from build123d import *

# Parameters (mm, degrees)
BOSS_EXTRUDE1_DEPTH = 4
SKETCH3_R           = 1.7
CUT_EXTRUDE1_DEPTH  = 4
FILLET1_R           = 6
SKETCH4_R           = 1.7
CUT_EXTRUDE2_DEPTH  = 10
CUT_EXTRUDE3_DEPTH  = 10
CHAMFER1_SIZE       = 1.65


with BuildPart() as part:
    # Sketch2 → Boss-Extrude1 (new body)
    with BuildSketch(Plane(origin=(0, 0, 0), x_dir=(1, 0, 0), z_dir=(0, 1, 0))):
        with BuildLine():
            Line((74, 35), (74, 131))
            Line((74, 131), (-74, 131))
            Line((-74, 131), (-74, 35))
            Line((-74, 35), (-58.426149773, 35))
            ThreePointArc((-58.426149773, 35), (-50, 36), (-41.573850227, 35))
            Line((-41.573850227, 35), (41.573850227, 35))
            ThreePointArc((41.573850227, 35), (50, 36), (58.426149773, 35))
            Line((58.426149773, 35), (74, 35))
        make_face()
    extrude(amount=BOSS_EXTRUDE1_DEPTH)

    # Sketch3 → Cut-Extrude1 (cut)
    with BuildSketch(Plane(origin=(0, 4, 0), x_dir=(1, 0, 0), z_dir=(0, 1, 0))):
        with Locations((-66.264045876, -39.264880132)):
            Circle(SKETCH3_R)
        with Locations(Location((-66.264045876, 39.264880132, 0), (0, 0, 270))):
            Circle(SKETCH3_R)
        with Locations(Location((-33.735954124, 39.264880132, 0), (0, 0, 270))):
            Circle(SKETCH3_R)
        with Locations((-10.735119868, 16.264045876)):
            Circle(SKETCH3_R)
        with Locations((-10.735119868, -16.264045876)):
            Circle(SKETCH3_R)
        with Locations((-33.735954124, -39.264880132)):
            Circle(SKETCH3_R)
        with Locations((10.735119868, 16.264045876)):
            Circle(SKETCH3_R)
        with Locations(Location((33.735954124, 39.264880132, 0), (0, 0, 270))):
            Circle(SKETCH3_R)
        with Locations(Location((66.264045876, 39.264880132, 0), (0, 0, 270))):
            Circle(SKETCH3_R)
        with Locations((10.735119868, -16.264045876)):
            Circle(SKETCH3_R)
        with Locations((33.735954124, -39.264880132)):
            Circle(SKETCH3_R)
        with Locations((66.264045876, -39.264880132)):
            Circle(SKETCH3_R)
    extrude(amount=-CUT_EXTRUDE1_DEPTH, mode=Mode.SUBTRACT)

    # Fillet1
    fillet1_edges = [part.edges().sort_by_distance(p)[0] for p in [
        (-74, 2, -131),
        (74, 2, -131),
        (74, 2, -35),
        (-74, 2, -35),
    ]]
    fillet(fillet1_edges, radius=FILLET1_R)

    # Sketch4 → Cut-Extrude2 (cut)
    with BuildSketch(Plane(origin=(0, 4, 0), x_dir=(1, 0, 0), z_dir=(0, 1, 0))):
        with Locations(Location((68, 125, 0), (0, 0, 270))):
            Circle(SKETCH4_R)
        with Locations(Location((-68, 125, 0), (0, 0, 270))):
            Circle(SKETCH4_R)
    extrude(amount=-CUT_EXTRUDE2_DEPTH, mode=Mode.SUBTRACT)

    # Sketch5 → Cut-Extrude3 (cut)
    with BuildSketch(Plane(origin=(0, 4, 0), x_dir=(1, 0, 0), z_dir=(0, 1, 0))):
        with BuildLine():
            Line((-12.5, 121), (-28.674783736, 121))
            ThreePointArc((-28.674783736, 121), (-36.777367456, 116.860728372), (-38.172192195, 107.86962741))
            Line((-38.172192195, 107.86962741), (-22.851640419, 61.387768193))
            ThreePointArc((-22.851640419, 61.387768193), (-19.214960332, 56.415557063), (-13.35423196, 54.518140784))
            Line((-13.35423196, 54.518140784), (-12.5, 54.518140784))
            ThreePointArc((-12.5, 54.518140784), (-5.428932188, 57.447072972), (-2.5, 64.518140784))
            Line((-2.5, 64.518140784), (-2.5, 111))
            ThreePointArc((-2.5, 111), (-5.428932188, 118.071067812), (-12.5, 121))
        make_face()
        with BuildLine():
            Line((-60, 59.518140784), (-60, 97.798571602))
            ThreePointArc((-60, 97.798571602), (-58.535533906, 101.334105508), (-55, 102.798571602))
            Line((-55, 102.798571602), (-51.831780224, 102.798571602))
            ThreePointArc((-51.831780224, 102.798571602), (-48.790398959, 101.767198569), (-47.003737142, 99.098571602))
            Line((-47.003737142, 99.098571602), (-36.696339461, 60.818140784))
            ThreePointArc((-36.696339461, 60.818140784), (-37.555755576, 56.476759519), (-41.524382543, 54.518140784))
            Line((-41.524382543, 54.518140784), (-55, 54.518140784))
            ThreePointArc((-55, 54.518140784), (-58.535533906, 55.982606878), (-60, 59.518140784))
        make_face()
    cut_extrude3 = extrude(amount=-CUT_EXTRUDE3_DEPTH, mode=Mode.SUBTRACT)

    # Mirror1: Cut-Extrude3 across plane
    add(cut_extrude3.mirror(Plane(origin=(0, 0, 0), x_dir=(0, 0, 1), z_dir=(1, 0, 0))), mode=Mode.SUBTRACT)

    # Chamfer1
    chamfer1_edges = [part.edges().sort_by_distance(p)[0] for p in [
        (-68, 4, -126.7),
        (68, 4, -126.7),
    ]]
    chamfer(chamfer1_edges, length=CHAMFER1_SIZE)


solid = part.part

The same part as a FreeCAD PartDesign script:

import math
import FreeCAD as App
import Part
import Sketcher
from FreeCAD import Vector
Q = App.Units.Quantity


def edges_at(feature, points):
    """Names of the edges that pass closest to the given points."""
    edges = feature.Shape.Edges
    near = lambda p: min(range(len(edges)), key=lambda i: edges[i].distToShape(Part.Vertex(*p))[0])
    return sorted({f"Edge{near(p) + 1}" for p in points})

doc = App.newDocument("Part")
params = doc.addObject("Spreadsheet::Sheet", "Params")
for row, (alias, value) in enumerate([
    ("sketch1_radius", "36 mm"),
    ("sketch1_width", "148 mm"),
    ("sketch1_height", "96 mm"),
    ("pad1_length", "4 mm"),
    ("sketch2_diameter", "3.4 mm"),
    ("pocket1_length", "4 mm"),
    ("fillet_radius", "6 mm"),
    ("sketch3_diameter", "3.4 mm"),
    ("pocket2_length", "10 mm"),
    ("sketch4_radius", "10 mm"),
    ("sketch4_radius2", "5 mm"),
    ("sketch4_height", "1.3 mm"),
    ("pocket3_length", "10 mm"),
    ("chamfer_size", "1.65 mm"),
], start=1):
    params.set(f"A{row}", alias)
    params.set(f"B{row}", "=" + value)
    params.setAlias(f"B{row}", alias)

body = doc.addObject("PartDesign::Body", "Body")

sketch1 = doc.addObject("Sketcher::SketchObject", "Sketch")
body.addObject(sketch1)
sketch1.AttachmentSupport = (doc.XZ_Plane, [""])
sketch1.MapMode = "FlatFace"
sketch1.addGeometry(Part.LineSegment(Vector(74, -35, 0), Vector(74, -131, 0)), False)
sketch1.addGeometry(Part.LineSegment(Vector(74, -131, 0), Vector(-74, -131, 0)), False)
sketch1.addGeometry(Part.LineSegment(Vector(-74, -131, 0), Vector(-74, -35, 0)), False)
sketch1.addGeometry(Part.LineSegment(Vector(-74, -35, 0), Vector(-58.42615, -35, 0)), False)
sketch1.addGeometry(Part.ArcOfCircle(Part.Circle(Vector(-50, 0, 0), Vector(0, 0, 1), 36), math.radians(-103.536203), math.radians(-76.463797)), False)
sketch1.addGeometry(Part.LineSegment(Vector(-41.57385, -35, 0), Vector(41.57385, -35, 0)), False)
sketch1.addGeometry(Part.ArcOfCircle(Part.Circle(Vector(50, 0, 0), Vector(0, 0, 1), 36), math.radians(-103.536203), math.radians(-76.463797)), False)
sketch1.addGeometry(Part.LineSegment(Vector(58.42615, -35, 0), Vector(74, -35, 0)), False)
sketch1.addConstraint(Sketcher.Constraint("Coincident", 0, 2, 1, 1))
sketch1.addConstraint(Sketcher.Constraint("Coincident", 1, 2, 2, 1))
sketch1.addConstraint(Sketcher.Constraint("Coincident", 2, 2, 3, 1))
sketch1.addConstraint(Sketcher.Constraint("Coincident", 3, 2, 4, 1))
sketch1.addConstraint(Sketcher.Constraint("Coincident", 4, 2, 5, 1))
sketch1.addConstraint(Sketcher.Constraint("Coincident", 5, 2, 6, 1))
sketch1.addConstraint(Sketcher.Constraint("Coincident", 6, 2, 7, 1))
sketch1.addConstraint(Sketcher.Constraint("Coincident", 7, 2, 0, 1))
sketch1.addConstraint(Sketcher.Constraint("Vertical", 0))
sketch1.addConstraint(Sketcher.Constraint("Horizontal", 1))
sketch1.addConstraint(Sketcher.Constraint("Vertical", 2))
sketch1.addConstraint(Sketcher.Constraint("Horizontal", 3))
sketch1.addConstraint(Sketcher.Constraint("Horizontal", 5))
sketch1.addConstraint(Sketcher.Constraint("Horizontal", 7))
sketch1.addConstraint(Sketcher.Constraint("Equal", 4, 6))
sketch1.addConstraint(Sketcher.Constraint("Symmetric", 4, 3, 6, 3, -1, 1))
sketch1.addConstraint(Sketcher.Constraint("Symmetric", 3, 2, 6, 2, -2))
sketch1.addConstraint(Sketcher.Constraint("Horizontal", 3, 2, 4, 2))
sketch1.addConstraint(Sketcher.Constraint("Equal", 3, 7))
sketch1.addConstraint(Sketcher.Constraint("Radius", 4, Q("36 mm")))
sketch1.addConstraint(Sketcher.Constraint("DistanceX", 1, 2, 1, 1, Q("148 mm")))
sketch1.addConstraint(Sketcher.Constraint("DistanceY", 0, 2, 0, 1, Q("96 mm")))
sketch1.addConstraint(Sketcher.Constraint("DistanceX", 4, 3, -1, 1, Q("50 mm")))
sketch1.addConstraint(Sketcher.Constraint("DistanceY", 0, 2, -1, 1, Q("131 mm")))
sketch1.setExpression("Constraints[19]", "Params.sketch1_radius")
sketch1.setExpression("Constraints[20]", "Params.sketch1_width")
sketch1.setExpression("Constraints[21]", "Params.sketch1_height")
pad1 = doc.addObject("PartDesign::Pad", "Pad")
body.addObject(pad1)
pad1.Profile = sketch1
pad1.setExpression("Length", "Params.pad1_length")
pad1.Reversed = True

sketch2 = doc.addObject("Sketcher::SketchObject", "Sketch001")
body.addObject(sketch2)
sketch2.AttachmentSupport = (doc.XZ_Plane, [""])
sketch2.MapMode = "FlatFace"
sketch2.AttachmentOffset = App.Placement(Vector(0, 0, -4), App.Rotation())
sketch2.addGeometry(Part.Circle(Vector(-66.264046, 39.26488, 0), Vector(0, 0, 1), 1.7), False)
sketch2.addGeometry(Part.Circle(Vector(-66.264046, -39.26488, 0), Vector(0, 0, 1), 1.7), False)
sketch2.addGeometry(Part.Circle(Vector(-33.735954, -39.26488, 0), Vector(0, 0, 1), 1.7), False)
sketch2.addGeometry(Part.Circle(Vector(-10.73512, -16.264046, 0), Vector(0, 0, 1), 1.7), False)
sketch2.addGeometry(Part.Circle(Vector(-10.73512, 16.264046, 0), Vector(0, 0, 1), 1.7), False)
sketch2.addGeometry(Part.Circle(Vector(-33.735954, 39.26488, 0), Vector(0, 0, 1), 1.7), False)
sketch2.addGeometry(Part.Circle(Vector(10.73512, -16.264046, 0), Vector(0, 0, 1), 1.7), False)
sketch2.addGeometry(Part.Circle(Vector(33.735954, -39.26488, 0), Vector(0, 0, 1), 1.7), False)
sketch2.addGeometry(Part.Circle(Vector(66.264046, -39.26488, 0), Vector(0, 0, 1), 1.7), False)
sketch2.addGeometry(Part.Circle(Vector(10.73512, 16.264046, 0), Vector(0, 0, 1), 1.7), False)
sketch2.addGeometry(Part.Circle(Vector(33.735954, 39.26488, 0), Vector(0, 0, 1), 1.7), False)
sketch2.addGeometry(Part.Circle(Vector(66.264046, 39.26488, 0), Vector(0, 0, 1), 1.7), False)
sketch2.addConstraint(Sketcher.Constraint("Equal", 0, 1))
sketch2.addConstraint(Sketcher.Constraint("Equal", 1, 2))
sketch2.addConstraint(Sketcher.Constraint("Equal", 2, 3))
sketch2.addConstraint(Sketcher.Constraint("Equal", 3, 4))
sketch2.addConstraint(Sketcher.Constraint("Equal", 4, 5))
sketch2.addConstraint(Sketcher.Constraint("Equal", 5, 6))
sketch2.addConstraint(Sketcher.Constraint("Equal", 6, 7))
sketch2.addConstraint(Sketcher.Constraint("Equal", 7, 8))
sketch2.addConstraint(Sketcher.Constraint("Equal", 8, 9))
sketch2.addConstraint(Sketcher.Constraint("Equal", 9, 10))
sketch2.addConstraint(Sketcher.Constraint("Equal", 10, 11))
sketch2.addConstraint(Sketcher.Constraint("Symmetric", 4, 3, 6, 3, -1, 1))
sketch2.addConstraint(Sketcher.Constraint("Symmetric", 5, 3, 7, 3, -1, 1))
sketch2.addConstraint(Sketcher.Constraint("Symmetric", 0, 3, 8, 3, -1, 1))
sketch2.addConstraint(Sketcher.Constraint("Symmetric", 3, 3, 9, 3, -1, 1))
sketch2.addConstraint(Sketcher.Constraint("Symmetric", 2, 3, 10, 3, -1, 1))
sketch2.addConstraint(Sketcher.Constraint("Symmetric", 1, 3, 11, 3, -1, 1))
sketch2.addConstraint(Sketcher.Constraint("Symmetric", 3, 3, 6, 3, -2))
sketch2.addConstraint(Sketcher.Constraint("Symmetric", 2, 3, 7, 3, -2))
sketch2.addConstraint(Sketcher.Constraint("Symmetric", 1, 3, 8, 3, -2))
sketch2.addConstraint(Sketcher.Constraint("Horizontal", 1, 3, 2, 3))
sketch2.addConstraint(Sketcher.Constraint("Diameter", 0, Q("3.4 mm")))
sketch2.addConstraint(Sketcher.Constraint("DistanceX", 1, 3, 7, 3, Q("100 mm")))
sketch2.addConstraint(Sketcher.Constraint("DistanceY", -1, 1, 0, 3, Q("39.26488 mm")))
sketch2.addConstraint(Sketcher.Constraint("DistanceX", 3, 3, -1, 1, Q("10.73512 mm")))
sketch2.addConstraint(Sketcher.Constraint("DistanceX", 1, 3, 2, 3, Q("32.528092 mm")))
sketch2.addConstraint(Sketcher.Constraint("DistanceY", 3, 3, 4, 3, Q("32.528092 mm")))
sketch2.setExpression("Constraints[21]", "Params.sketch2_diameter")
pocket1 = doc.addObject("PartDesign::Pocket", "Pocket")
body.addObject(pocket1)
pocket1.Profile = sketch2
pocket1.setExpression("Length", "Params.pocket1_length")
pocket1.Reversed = True
doc.recompute()

fillet = doc.addObject("PartDesign::Fillet", "Fillet")
body.addObject(fillet)
fillet.Base = (pocket1, edges_at(pocket1, [
    (-74, 2, -131),
    (74, 2, -131),
    (74, 2, -35),
    (-74, 2, -35),
]))
fillet.setExpression("Radius", "Params.fillet_radius")

sketch3 = doc.addObject("Sketcher::SketchObject", "Sketch002")
body.addObject(sketch3)
sketch3.AttachmentSupport = (doc.XZ_Plane, [""])
sketch3.MapMode = "FlatFace"
sketch3.AttachmentOffset = App.Placement(Vector(0, 0, -4), App.Rotation())
sketch3.addGeometry(Part.Circle(Vector(68, -125, 0), Vector(0, 0, 1), 1.7), False)
sketch3.addGeometry(Part.Circle(Vector(-68, -125, 0), Vector(0, 0, 1), 1.7), False)
sketch3.addConstraint(Sketcher.Constraint("Equal", 0, 1))
sketch3.addConstraint(Sketcher.Constraint("Symmetric", 0, 3, 1, 3, -2))
sketch3.addConstraint(Sketcher.Constraint("Diameter", 0, Q("3.4 mm")))
sketch3.addConstraint(Sketcher.Constraint("DistanceX", -1, 1, 0, 3, Q("68 mm")))
sketch3.addConstraint(Sketcher.Constraint("DistanceY", 0, 3, -1, 1, Q("125 mm")))
sketch3.setExpression("Constraints[2]", "Params.sketch3_diameter")
pocket2 = doc.addObject("PartDesign::Pocket", "Pocket001")
body.addObject(pocket2)
pocket2.Profile = sketch3
pocket2.setExpression("Length", "Params.pocket2_length")
pocket2.Reversed = True

sketch4 = doc.addObject("Sketcher::SketchObject", "Sketch003")
body.addObject(sketch4)
sketch4.AttachmentSupport = (doc.XZ_Plane, [""])
sketch4.MapMode = "FlatFace"
sketch4.AttachmentOffset = App.Placement(Vector(0, 0, -4), App.Rotation())
sketch4.addGeometry(Part.LineSegment(Vector(-12.5, -121, 0), Vector(-28.674784, -121, 0)), False)
sketch4.addGeometry(Part.ArcOfCircle(Part.Circle(Vector(-28.674784, -111, 0), Vector(0, 0, 1), 10), math.radians(161.757635), math.radians(270)), False)
sketch4.addGeometry(Part.LineSegment(Vector(-38.172192, -107.869627, 0), Vector(-22.85164, -61.387768, 0)), False)
sketch4.addGeometry(Part.ArcOfCircle(Part.Circle(Vector(-13.354232, -64.518141, 0), Vector(0, 0, 1), 10), math.radians(90), math.radians(161.757635)), False)
sketch4.addGeometry(Part.LineSegment(Vector(-13.354232, -54.518141, 0), Vector(-12.5, -54.518141, 0)), False)
sketch4.addGeometry(Part.ArcOfCircle(Part.Circle(Vector(-12.5, -64.518141, 0), Vector(0, 0, 1), 10), math.radians(0), math.radians(90)), False)
sketch4.addGeometry(Part.LineSegment(Vector(-2.5, -64.518141, 0), Vector(-2.5, -111, 0)), False)
sketch4.addGeometry(Part.ArcOfCircle(Part.Circle(Vector(-12.5, -111, 0), Vector(0, 0, 1), 10), math.radians(-90), math.radians(0)), False)
sketch4.addGeometry(Part.LineSegment(Vector(-60, -97.798572, 0), Vector(-60, -59.518141, 0)), False)
sketch4.addGeometry(Part.ArcOfCircle(Part.Circle(Vector(-55, -59.518141, 0), Vector(0, 0, 1), 5), math.radians(90), math.radians(180)), False)
sketch4.addGeometry(Part.LineSegment(Vector(-55, -54.518141, 0), Vector(-41.524383, -54.518141, 0)), False)
sketch4.addGeometry(Part.ArcOfCircle(Part.Circle(Vector(-41.524383, -59.518141, 0), Vector(0, 0, 1), 5), math.radians(-15.070062), math.radians(90)), False)
sketch4.addGeometry(Part.LineSegment(Vector(-36.696339, -60.818141, 0), Vector(-47.003737, -99.098572, 0)), False)
sketch4.addGeometry(Part.ArcOfCircle(Part.Circle(Vector(-51.83178, -97.798572, 0), Vector(0, 0, 1), 5), math.radians(-90), math.radians(-15.070062)), False)
sketch4.addGeometry(Part.LineSegment(Vector(-51.83178, -102.798572, 0), Vector(-55, -102.798572, 0)), False)
sketch4.addGeometry(Part.ArcOfCircle(Part.Circle(Vector(-55, -97.798572, 0), Vector(0, 0, 1), 5), math.radians(180), math.radians(270)), False)
sketch4.addConstraint(Sketcher.Constraint("Tangent", 0, 2, 1, 2))
sketch4.addConstraint(Sketcher.Constraint("Tangent", 1, 1, 2, 1))
sketch4.addConstraint(Sketcher.Constraint("Tangent", 2, 2, 3, 2))
sketch4.addConstraint(Sketcher.Constraint("Tangent", 3, 1, 4, 1))
sketch4.addConstraint(Sketcher.Constraint("Tangent", 4, 2, 5, 2))
sketch4.addConstraint(Sketcher.Constraint("Tangent", 5, 1, 6, 1))
sketch4.addConstraint(Sketcher.Constraint("Tangent", 6, 2, 7, 2))
sketch4.addConstraint(Sketcher.Constraint("Tangent", 7, 1, 0, 1))
sketch4.addConstraint(Sketcher.Constraint("Tangent", 8, 2, 9, 2))
sketch4.addConstraint(Sketcher.Constraint("Tangent", 9, 1, 10, 1))
sketch4.addConstraint(Sketcher.Constraint("Tangent", 10, 2, 11, 2))
sketch4.addConstraint(Sketcher.Constraint("Tangent", 11, 1, 12, 1))
sketch4.addConstraint(Sketcher.Constraint("Tangent", 12, 2, 13, 2))
sketch4.addConstraint(Sketcher.Constraint("Tangent", 13, 1, 14, 1))
sketch4.addConstraint(Sketcher.Constraint("Tangent", 14, 2, 15, 2))
sketch4.addConstraint(Sketcher.Constraint("Tangent", 15, 1, 8, 1))
sketch4.addConstraint(Sketcher.Constraint("Horizontal", 0))
sketch4.addConstraint(Sketcher.Constraint("Horizontal", 4))
sketch4.addConstraint(Sketcher.Constraint("Vertical", 6))
sketch4.addConstraint(Sketcher.Constraint("Vertical", 8))
sketch4.addConstraint(Sketcher.Constraint("Horizontal", 10))
sketch4.addConstraint(Sketcher.Constraint("Horizontal", 14))
sketch4.addConstraint(Sketcher.Constraint("Equal", 1, 3))
sketch4.addConstraint(Sketcher.Constraint("Equal", 3, 5))
sketch4.addConstraint(Sketcher.Constraint("Equal", 5, 7))
sketch4.addConstraint(Sketcher.Constraint("Equal", 9, 11))
sketch4.addConstraint(Sketcher.Constraint("Equal", 11, 13))
sketch4.addConstraint(Sketcher.Constraint("Equal", 13, 15))
sketch4.addConstraint(Sketcher.Constraint("Horizontal", 4, 2, 9, 1))
sketch4.addConstraint(Sketcher.Constraint("Radius", 1, Q("10 mm")))
sketch4.addConstraint(Sketcher.Constraint("Radius", 9, Q("5 mm")))
sketch4.addConstraint(Sketcher.Constraint("DistanceY", 1, 3, -1, 1, Q("111 mm")))
sketch4.addConstraint(Sketcher.Constraint("DistanceX", 9, 3, -1, 1, Q("55 mm")))
sketch4.addConstraint(Sketcher.Constraint("DistanceX", 5, 3, -1, 1, Q("12.5 mm")))
sketch4.addConstraint(Sketcher.Constraint("DistanceY", 11, 1, 11, 3, Q("1.3 mm")))
sketch4.addConstraint(Sketcher.Constraint("DistanceX", 4, 1, 4, 2, Q("0.854232 mm")))
sketch4.addConstraint(Sketcher.Constraint("DistanceX", 14, 2, 14, 1, Q("3.16822 mm")))
sketch4.addConstraint(Sketcher.Constraint("DistanceY", 6, 2, 6, 1, Q("46.481859 mm")))
sketch4.addConstraint(Sketcher.Constraint("DistanceY", 8, 1, 8, 2, Q("38.280431 mm")))
sketch4.addConstraint(Sketcher.Constraint("DistanceX", 11, 3, 1, 3, Q("12.849599 mm")))
sketch4.setExpression("Constraints[29]", "Params.sketch4_radius")
sketch4.setExpression("Constraints[30]", "Params.sketch4_radius2")
sketch4.setExpression("Constraints[34]", "Params.sketch4_height")
pocket3 = doc.addObject("PartDesign::Pocket", "Pocket002")
body.addObject(pocket3)
pocket3.Profile = sketch4
pocket3.setExpression("Length", "Params.pocket3_length")
pocket3.Reversed = True
doc.recompute()

mirrored = doc.addObject("PartDesign::Mirrored", "Mirrored")
body.addObject(mirrored)
mirrored.Originals = [pocket3]
mirrored.MirrorPlane = (doc.YZ_Plane, [""])
body.Tip = mirrored
doc.recompute()

chamfer = doc.addObject("PartDesign::Chamfer", "Chamfer")
body.addObject(chamfer)
chamfer.Base = (mirrored, edges_at(mirrored, [(-68, 4, -126.7), (68, 4, -126.7)]))
chamfer.setExpression("Size", "Params.chamfer_size")

doc.recompute()
